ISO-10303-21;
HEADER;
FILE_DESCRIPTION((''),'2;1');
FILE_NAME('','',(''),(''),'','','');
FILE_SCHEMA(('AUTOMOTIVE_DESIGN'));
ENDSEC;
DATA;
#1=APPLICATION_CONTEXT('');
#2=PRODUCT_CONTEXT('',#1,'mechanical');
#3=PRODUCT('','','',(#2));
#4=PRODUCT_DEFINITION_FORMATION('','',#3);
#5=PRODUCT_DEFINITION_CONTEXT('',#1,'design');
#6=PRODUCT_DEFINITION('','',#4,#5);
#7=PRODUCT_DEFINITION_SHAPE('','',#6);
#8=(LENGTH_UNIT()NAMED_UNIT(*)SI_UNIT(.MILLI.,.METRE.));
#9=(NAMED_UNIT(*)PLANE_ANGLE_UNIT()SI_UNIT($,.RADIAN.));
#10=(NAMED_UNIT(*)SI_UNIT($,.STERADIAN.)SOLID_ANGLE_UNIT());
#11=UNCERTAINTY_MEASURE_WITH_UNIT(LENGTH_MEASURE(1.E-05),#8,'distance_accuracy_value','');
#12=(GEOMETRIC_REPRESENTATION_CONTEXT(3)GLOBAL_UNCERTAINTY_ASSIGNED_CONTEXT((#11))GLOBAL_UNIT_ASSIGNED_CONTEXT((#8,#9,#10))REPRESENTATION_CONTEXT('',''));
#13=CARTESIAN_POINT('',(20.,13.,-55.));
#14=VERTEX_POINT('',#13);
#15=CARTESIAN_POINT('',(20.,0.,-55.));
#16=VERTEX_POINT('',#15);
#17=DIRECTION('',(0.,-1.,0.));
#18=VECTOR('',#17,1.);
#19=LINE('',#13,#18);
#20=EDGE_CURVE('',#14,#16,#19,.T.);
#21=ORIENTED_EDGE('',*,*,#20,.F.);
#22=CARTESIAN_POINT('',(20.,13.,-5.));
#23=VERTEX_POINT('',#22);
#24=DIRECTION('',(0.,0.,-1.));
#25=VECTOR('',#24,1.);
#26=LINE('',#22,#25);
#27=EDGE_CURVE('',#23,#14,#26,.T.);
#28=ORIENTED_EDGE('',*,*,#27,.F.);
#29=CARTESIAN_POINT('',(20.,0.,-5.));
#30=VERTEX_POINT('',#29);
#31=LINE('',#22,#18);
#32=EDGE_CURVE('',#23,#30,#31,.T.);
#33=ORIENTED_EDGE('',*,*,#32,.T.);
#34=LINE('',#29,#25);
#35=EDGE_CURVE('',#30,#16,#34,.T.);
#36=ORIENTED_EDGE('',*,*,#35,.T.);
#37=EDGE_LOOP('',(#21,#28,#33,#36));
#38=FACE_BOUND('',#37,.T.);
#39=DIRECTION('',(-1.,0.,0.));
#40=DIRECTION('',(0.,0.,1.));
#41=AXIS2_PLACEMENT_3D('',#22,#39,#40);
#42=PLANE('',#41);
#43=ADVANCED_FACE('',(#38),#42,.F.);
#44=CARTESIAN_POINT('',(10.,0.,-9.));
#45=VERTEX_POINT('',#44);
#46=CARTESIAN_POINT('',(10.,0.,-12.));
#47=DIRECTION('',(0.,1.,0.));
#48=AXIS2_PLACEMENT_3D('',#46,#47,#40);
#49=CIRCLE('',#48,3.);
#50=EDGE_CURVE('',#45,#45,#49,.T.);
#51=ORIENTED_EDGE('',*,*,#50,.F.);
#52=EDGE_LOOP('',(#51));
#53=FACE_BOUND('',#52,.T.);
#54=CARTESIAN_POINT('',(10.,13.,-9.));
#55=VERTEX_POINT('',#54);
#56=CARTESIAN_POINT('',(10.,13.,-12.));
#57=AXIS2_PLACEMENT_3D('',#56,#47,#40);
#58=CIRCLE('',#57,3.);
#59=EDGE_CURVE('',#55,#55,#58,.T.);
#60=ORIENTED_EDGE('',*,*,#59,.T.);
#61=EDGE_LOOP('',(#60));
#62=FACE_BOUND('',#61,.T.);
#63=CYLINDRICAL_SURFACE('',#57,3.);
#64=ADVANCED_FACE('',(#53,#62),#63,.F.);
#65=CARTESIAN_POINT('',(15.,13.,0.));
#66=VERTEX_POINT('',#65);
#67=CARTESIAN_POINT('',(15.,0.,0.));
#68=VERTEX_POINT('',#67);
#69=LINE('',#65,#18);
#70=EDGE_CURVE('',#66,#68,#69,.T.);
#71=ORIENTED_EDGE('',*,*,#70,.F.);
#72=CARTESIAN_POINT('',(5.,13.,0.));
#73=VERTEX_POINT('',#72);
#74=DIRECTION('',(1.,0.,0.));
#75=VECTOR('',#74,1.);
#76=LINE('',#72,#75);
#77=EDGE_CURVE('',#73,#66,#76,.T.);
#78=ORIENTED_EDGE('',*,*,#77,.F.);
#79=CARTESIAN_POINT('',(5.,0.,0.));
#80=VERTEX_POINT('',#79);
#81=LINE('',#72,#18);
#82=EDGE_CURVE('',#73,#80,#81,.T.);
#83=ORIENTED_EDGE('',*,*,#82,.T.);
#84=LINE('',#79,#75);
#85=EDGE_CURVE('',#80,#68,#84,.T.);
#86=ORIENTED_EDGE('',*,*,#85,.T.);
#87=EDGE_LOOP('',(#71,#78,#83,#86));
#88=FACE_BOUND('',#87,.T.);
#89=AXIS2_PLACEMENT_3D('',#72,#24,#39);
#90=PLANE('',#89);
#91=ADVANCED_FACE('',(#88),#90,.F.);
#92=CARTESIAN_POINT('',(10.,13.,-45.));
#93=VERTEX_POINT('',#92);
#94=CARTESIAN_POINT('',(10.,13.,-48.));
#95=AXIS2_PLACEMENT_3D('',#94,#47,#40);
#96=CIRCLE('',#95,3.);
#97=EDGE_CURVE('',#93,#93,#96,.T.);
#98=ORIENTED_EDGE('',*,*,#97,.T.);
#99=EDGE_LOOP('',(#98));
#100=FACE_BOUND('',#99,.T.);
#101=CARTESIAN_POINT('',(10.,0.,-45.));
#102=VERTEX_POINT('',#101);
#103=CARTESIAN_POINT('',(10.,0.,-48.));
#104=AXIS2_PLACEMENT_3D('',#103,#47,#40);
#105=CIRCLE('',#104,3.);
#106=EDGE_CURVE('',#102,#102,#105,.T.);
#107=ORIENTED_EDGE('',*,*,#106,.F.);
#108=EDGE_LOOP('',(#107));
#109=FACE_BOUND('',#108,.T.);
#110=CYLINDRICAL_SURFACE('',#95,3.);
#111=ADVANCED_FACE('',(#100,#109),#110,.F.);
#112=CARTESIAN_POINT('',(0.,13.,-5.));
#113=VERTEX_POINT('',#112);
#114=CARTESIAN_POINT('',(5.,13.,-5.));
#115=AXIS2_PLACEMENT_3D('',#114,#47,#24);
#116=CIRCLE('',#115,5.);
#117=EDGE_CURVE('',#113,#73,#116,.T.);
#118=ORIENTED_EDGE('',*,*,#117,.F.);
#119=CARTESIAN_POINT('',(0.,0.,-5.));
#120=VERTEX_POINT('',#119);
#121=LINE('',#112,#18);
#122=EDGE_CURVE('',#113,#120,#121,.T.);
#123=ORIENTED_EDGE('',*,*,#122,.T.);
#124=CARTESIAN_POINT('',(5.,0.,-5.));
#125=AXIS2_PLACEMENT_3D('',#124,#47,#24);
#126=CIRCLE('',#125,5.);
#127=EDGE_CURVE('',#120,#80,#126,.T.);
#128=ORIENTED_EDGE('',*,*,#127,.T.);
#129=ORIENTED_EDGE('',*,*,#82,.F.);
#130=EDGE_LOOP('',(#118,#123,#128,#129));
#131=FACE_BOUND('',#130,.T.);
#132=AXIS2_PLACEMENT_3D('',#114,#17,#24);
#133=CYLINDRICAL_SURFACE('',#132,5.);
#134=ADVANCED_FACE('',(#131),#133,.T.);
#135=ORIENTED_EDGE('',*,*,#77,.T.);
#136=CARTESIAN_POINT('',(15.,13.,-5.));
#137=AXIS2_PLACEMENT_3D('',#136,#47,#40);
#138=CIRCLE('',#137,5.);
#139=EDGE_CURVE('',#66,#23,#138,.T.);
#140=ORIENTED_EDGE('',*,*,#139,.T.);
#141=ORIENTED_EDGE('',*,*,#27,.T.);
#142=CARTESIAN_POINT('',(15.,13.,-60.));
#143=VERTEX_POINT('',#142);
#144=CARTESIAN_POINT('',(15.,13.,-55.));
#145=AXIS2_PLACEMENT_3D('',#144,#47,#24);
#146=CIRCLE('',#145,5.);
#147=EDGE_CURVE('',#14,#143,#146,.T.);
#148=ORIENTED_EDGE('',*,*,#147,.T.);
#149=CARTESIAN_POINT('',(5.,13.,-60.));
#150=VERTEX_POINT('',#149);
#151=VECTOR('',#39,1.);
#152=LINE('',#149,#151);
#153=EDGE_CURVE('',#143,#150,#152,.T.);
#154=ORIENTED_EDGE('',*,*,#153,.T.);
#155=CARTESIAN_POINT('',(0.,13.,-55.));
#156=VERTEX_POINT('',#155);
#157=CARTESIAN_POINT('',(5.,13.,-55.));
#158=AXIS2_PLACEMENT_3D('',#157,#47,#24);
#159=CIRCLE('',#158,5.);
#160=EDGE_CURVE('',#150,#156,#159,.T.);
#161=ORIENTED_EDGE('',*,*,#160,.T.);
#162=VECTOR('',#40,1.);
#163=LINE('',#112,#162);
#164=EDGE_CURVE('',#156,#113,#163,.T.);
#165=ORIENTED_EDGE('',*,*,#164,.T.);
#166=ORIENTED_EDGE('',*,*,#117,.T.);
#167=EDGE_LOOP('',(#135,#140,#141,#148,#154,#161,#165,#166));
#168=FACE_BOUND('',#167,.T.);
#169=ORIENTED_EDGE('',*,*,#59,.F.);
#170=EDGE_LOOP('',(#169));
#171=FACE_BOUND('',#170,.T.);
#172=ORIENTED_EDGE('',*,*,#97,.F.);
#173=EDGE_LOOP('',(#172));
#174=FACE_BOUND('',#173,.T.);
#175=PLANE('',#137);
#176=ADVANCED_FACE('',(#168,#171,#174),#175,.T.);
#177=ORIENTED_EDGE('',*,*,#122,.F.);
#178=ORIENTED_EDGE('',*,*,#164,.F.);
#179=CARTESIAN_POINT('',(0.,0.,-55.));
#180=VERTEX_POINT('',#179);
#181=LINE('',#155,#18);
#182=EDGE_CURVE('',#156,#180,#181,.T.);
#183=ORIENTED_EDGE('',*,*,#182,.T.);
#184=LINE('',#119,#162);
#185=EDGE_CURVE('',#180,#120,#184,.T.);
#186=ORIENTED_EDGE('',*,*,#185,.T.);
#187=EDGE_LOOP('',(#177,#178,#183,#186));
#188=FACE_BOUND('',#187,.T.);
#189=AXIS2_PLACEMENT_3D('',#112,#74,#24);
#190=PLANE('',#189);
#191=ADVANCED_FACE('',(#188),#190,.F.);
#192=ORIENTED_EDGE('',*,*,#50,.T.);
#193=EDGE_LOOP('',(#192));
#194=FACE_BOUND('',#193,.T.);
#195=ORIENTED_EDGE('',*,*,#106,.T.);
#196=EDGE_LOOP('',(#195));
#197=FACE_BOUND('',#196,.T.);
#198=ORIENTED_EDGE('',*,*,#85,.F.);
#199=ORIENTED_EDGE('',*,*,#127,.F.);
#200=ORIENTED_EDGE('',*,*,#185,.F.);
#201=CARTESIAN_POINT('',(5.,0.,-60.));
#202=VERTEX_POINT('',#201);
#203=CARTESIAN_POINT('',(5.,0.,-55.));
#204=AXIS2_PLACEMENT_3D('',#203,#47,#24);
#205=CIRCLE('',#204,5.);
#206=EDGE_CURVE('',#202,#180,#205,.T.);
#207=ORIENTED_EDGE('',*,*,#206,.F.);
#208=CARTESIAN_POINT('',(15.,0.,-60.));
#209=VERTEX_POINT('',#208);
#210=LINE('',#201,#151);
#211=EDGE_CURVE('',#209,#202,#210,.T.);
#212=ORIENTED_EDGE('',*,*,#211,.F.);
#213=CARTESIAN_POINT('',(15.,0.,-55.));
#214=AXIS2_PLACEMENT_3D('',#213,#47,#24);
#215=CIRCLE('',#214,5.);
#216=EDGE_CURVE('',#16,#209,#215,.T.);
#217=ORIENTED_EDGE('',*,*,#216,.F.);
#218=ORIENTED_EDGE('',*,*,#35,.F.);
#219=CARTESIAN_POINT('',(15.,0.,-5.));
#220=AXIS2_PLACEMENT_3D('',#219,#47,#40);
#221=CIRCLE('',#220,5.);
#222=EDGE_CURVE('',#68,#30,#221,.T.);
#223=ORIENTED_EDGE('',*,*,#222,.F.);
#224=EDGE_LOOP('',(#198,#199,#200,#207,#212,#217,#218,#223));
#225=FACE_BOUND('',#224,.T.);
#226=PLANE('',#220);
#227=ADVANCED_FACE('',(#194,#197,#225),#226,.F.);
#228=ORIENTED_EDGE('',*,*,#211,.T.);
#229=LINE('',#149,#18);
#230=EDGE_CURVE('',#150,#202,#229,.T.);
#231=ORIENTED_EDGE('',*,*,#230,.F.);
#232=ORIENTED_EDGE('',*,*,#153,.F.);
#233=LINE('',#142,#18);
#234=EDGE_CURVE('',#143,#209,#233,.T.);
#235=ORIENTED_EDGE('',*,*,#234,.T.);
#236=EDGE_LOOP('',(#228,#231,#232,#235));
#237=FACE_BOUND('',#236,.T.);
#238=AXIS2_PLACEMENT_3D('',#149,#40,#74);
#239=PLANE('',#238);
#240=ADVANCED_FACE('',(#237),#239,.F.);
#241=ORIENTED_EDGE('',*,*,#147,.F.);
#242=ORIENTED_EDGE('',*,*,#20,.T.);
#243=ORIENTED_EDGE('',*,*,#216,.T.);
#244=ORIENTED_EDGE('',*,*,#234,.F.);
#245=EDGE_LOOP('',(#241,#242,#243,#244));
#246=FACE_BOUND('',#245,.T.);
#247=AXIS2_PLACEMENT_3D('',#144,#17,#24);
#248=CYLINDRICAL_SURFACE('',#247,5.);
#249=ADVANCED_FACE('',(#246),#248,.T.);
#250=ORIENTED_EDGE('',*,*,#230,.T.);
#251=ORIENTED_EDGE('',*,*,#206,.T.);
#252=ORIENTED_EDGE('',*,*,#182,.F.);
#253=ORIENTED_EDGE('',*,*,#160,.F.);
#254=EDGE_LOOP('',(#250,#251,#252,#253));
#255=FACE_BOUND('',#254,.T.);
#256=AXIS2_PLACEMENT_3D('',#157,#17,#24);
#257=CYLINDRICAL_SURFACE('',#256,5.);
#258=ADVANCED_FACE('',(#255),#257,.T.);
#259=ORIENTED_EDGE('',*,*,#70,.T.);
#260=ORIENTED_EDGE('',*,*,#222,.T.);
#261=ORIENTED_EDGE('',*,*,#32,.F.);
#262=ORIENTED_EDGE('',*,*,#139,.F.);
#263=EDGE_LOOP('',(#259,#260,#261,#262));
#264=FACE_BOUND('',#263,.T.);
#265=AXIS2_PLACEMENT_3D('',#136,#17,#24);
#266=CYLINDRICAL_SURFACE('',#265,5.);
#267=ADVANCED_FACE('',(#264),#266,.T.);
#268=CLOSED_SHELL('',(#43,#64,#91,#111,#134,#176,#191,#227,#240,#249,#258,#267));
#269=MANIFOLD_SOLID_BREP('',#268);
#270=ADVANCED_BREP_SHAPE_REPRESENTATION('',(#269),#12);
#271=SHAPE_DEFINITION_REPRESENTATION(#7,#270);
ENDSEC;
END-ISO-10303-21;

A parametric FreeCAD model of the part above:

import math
import FreeCAD as App
import Part
import Sketcher

doc = App.newDocument("Part")
body = doc.addObject("PartDesign::Body", "Body")

sketch1 = doc.addObject("Sketcher::SketchObject", "Sketch")
body.addObject(sketch1)
sketch1.AttachmentSupport = (doc.XZ_Plane, [""])
sketch1.MapMode = "FlatFace"
sketch1.addGeometry(Part.LineSegment(App.Vector(5, 0, 0), App.Vector(15, 0, 0)), False)
sketch1.addGeometry(Part.ArcOfCircle(Part.Circle(App.Vector(15, -5, 0), App.Vector(0, 0, 1), 5), math.radians(0), math.radians(90)), False)
sketch1.addGeometry(Part.LineSegment(App.Vector(20, -5, 0), App.Vector(20, -55, 0)), False)
sketch1.addGeometry(Part.ArcOfCircle(Part.Circle(App.Vector(15, -55, 0), App.Vector(0, 0, 1), 5), math.radians(-90), math.radians(0)), False)
sketch1.addGeometry(Part.LineSegment(App.Vector(15, -60, 0), App.Vector(5, -60, 0)), False)
sketch1.addGeometry(Part.ArcOfCircle(Part.Circle(App.Vector(5, -55, 0), App.Vector(0, 0, 1), 5), math.radians(180), math.radians(270)), False)
sketch1.addGeometry(Part.LineSegment(App.Vector(0, -55, 0), App.Vector(0, -5, 0)), False)
sketch1.addGeometry(Part.ArcOfCircle(Part.Circle(App.Vector(5, -5, 0), App.Vector(0, 0, 1), 5), math.radians(90), math.radians(180)), False)
sketch1.addConstraint(Sketcher.Constraint("Tangent", 0, 2, 1, 2))
sketch1.addConstraint(Sketcher.Constraint("Tangent", 1, 1, 2, 1))
sketch1.addConstraint(Sketcher.Constraint("Tangent", 2, 2, 3, 2))
sketch1.addConstraint(Sketcher.Constraint("Tangent", 3, 1, 4, 1))
sketch1.addConstraint(Sketcher.Constraint("Tangent", 4, 2, 5, 2))
sketch1.addConstraint(Sketcher.Constraint("Tangent", 5, 1, 6, 1))
sketch1.addConstraint(Sketcher.Constraint("Tangent", 6, 2, 7, 2))
sketch1.addConstraint(Sketcher.Constraint("Tangent", 7, 1, 0, 1))
sketch1.addConstraint(Sketcher.Constraint("Horizontal", 0))
sketch1.addConstraint(Sketcher.Constraint("Vertical", 2))
sketch1.addConstraint(Sketcher.Constraint("Horizontal", 4))
sketch1.addConstraint(Sketcher.Constraint("Vertical", 6))
sketch1.addConstraint(Sketcher.Constraint("Equal", 1, 3))
sketch1.addConstraint(Sketcher.Constraint("Equal", 3, 5))
sketch1.addConstraint(Sketcher.Constraint("Equal", 5, 7))
sketch1.addConstraint(Sketcher.Constraint("PointOnObject", 0, 2, -1))
sketch1.addConstraint(Sketcher.Constraint("PointOnObject", 5, 1, -2))
sketch1.addConstraint(Sketcher.Constraint("Radius", 1, 5.0))
sketch1.addConstraint(Sketcher.Constraint("DistanceX", 0, 1, 0, 2, 10.0))
sketch1.addConstraint(Sketcher.Constraint("DistanceY", 2, 2, 2, 1, 50.0))
pad1 = doc.addObject("PartDesign::Pad", "Pad")
body.addObject(pad1)
pad1.Profile = sketch1
pad1.Length = 13
pad1.Reversed = True

sketch2 = doc.addObject("Sketcher::SketchObject", "Sketch001")
body.addObject(sketch2)
sketch2.AttachmentSupport = (doc.XZ_Plane, [""])
sketch2.MapMode = "FlatFace"
sketch2.AttachmentOffset = App.Placement(App.Vector(0, 0, -13), App.Rotation())
sketch2.addGeometry(Part.Circle(App.Vector(10, -12, 0), App.Vector(0, 0, 1), 3), False)
sketch2.addGeometry(Part.Circle(App.Vector(10, -48, 0), App.Vector(0, 0, 1), 3), False)
sketch2.addConstraint(Sketcher.Constraint("Equal", 0, 1))
sketch2.addConstraint(Sketcher.Constraint("Vertical", 0, 3, 1, 3))
sketch2.addConstraint(Sketcher.Constraint("Diameter", 0, 6.0))
sketch2.addConstraint(Sketcher.Constraint("DistanceX", -1, 1, 0, 3, 10.0))
sketch2.addConstraint(Sketcher.Constraint("DistanceY", 0, 3, -1, 1, 12.0))
sketch2.addConstraint(Sketcher.Constraint("DistanceY", 1, 3, -1, 1, 48.0))
doc.recompute()
hole = doc.addObject("PartDesign::Hole", "Hole")
body.addObject(hole)
hole.Profile = sketch2
hole.ThreadType = "None"
hole.Diameter = 6
hole.DepthType = "ThroughAll"
hole.Reversed = True

doc.recompute()
